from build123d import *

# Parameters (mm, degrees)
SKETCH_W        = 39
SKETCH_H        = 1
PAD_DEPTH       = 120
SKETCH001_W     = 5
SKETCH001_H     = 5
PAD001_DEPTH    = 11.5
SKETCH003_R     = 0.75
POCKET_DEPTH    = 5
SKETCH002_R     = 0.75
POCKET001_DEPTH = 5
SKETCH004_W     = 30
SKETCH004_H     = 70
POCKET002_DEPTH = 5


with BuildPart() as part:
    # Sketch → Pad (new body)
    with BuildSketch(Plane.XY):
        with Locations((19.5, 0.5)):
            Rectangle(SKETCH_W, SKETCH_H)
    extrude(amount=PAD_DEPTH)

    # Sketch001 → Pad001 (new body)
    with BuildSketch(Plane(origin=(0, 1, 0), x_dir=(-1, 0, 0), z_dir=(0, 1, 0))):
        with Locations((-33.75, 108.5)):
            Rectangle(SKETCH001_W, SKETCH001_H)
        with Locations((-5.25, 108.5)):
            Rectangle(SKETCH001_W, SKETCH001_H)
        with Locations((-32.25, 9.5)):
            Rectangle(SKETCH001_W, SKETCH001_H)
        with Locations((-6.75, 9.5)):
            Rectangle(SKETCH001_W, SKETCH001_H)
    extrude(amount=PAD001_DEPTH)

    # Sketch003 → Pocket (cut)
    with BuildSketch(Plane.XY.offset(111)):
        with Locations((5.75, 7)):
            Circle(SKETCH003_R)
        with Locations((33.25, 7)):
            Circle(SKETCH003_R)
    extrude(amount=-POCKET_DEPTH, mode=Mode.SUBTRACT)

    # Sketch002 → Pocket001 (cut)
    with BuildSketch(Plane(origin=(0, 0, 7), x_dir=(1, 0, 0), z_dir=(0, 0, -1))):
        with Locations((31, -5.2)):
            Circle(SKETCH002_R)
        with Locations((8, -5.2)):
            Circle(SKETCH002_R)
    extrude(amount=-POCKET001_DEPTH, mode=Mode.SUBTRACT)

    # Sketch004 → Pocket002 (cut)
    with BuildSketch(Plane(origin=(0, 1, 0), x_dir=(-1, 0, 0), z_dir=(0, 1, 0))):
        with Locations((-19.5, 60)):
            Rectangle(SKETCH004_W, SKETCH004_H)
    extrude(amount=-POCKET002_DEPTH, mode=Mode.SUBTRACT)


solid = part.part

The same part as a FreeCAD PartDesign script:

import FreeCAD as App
import Part
import Sketcher
from FreeCAD import Vector
Q = App.Units.Quantity


def add_polygon(sketch, points):
    """Adds a closed chain of lines whose ends are joined by coincident constraints."""
    first, n = sketch.GeometryCount, len(points)
    for a, b in zip(points, points[1:] + points[:1]):
        sketch.addGeometry(Part.LineSegment(App.Vector(*a, 0), App.Vector(*b, 0)), False)
    for i in range(n):
        sketch.addConstraint(Sketcher.Constraint("Coincident", first + i, 2, first + (i + 1) % n, 1))

doc = App.newDocument("Part")
body = doc.addObject("PartDesign::Body", "Body")

# Sketch on XY plane
sketch1 = body.newObject("Sketcher::SketchObject", "Sketch")
sketch1.AttachmentSupport = (doc.getObject("XY_Plane"), [""])
sketch1.MapMode = "FlatFace"
add_polygon(sketch1, [(0, 1), (0, 0), (39, 0), (39, 1)])  # lines 0-3
sketch1.addConstraint([
    Sketcher.Constraint("Vertical", 0),
    Sketcher.Constraint("Horizontal", 1),
    Sketcher.Constraint("Vertical", 2),
    Sketcher.Constraint("Horizontal", 3),
    Sketcher.Constraint("Coincident", 0, 2, -1, 1),
    Sketcher.Constraint("DistanceX", 1, 1, 1, 2, Q("39 mm")),
    Sketcher.Constraint("DistanceY", 0, 2, 0, 1, Q("1 mm")),
])
pad1 = body.newObject("PartDesign::Pad", "Pad")
pad1.Profile = sketch1
pad1.Length = 120

# Sketch on XZ plane
sketch2 = body.newObject("Sketcher::SketchObject", "Sketch001")
sketch2.AttachmentSupport = (doc.getObject("XZ_Plane"), [""])
sketch2.MapMode = "FlatFace"
sketch2.AttachmentOffset = App.Placement(Vector(0, 0, -1), App.Rotation())
add_polygon(sketch2, [(36.25, 111), (36.25, 106), (31.25, 106), (31.25, 111)])  # lines 0-3
add_polygon(sketch2, [(7.75, 111), (7.75, 106), (2.75, 106), (2.75, 111)])  # lines 4-7
add_polygon(sketch2, [(34.75, 12), (34.75, 7), (29.75, 7), (29.75, 12)])  # lines 8-11
add_polygon(sketch2, [(9.25, 12), (9.25, 7), (4.25, 7), (4.25, 12)])  # lines 12-15
sketch2.addConstraint([
    Sketcher.Constraint("Vertical", 0),
    Sketcher.Constraint("Horizontal", 1),
    Sketcher.Constraint("Vertical", 2),
    Sketcher.Constraint("Horizontal", 3),
    Sketcher.Constraint("Vertical", 4),
    Sketcher.Constraint("Horizontal", 5),
    Sketcher.Constraint("Vertical", 6),
    Sketcher.Constraint("Horizontal", 7),
    Sketcher.Constraint("Vertical", 8),
    Sketcher.Constraint("Horizontal", 9),
    Sketcher.Constraint("Vertical", 10),
    Sketcher.Constraint("Horizontal", 11),
    Sketcher.Constraint("Vertical", 12),
    Sketcher.Constraint("Horizontal", 13),
    Sketcher.Constraint("Vertical", 14),
    Sketcher.Constraint("Horizontal", 15),
    Sketcher.Constraint("Horizontal", 1, 2, 4, 2),
    Sketcher.Constraint("Horizontal", 3, 2, 6, 2),
    Sketcher.Constraint("Horizontal", 9, 2, 12, 2),
    Sketcher.Constraint("Horizontal", 11, 2, 14, 2),
    Sketcher.Constraint("Equal", 3, 5),
    Sketcher.Constraint("Equal", 7, 9),
    Sketcher.Constraint("Equal", 11, 13),
    Sketcher.Constraint("Equal", 15, 0),
    Sketcher.Constraint("Equal", 6, 8),
    Sketcher.Constraint("DistanceX", 1, 2, 1, 1, Q("5 mm")),
    Sketcher.Constraint("DistanceY", -1, 1, 0, 2, Q("106 mm")),
    Sketcher.Constraint("DistanceY", -1, 1, 8, 2, Q("7 mm")),
    Sketcher.Constraint("DistanceX", 4, 2, 8, 2, Q("27 mm")),
    Sketcher.Constraint("DistanceX", 4, 2, 1, 2, Q("23.5 mm")),
    Sketcher.Constraint("DistanceX", 12, 2, 9, 2, Q("20.5 mm")),
    Sketcher.Constraint("DistanceX", -1, 1, 0, 2, Q("36.25 mm")),
])
pad2 = body.newObject("PartDesign::Pad", "Pad001")
pad2.Profile = sketch2
pad2.Length = 11.5
pad2.Reversed = True

# Sketch on XY plane
sketch3 = body.newObject("Sketcher::SketchObject", "Sketch002")
sketch3.AttachmentSupport = (doc.getObject("XY_Plane"), [""])
sketch3.MapMode = "FlatFace"
sketch3.AttachmentOffset = App.Placement(Vector(0, 0, 111), App.Rotation())
sketch3.addGeometry([
    Part.Circle(Vector(5.75, 7, 0), Vector(0, 0, 1), 0.75),
    Part.Circle(Vector(33.25, 7, 0), Vector(0, 0, 1), 0.75),
], False)
sketch3.addConstraint([
    Sketcher.Constraint("Equal", 0, 1),
    Sketcher.Constraint("Horizontal", 0, 3, 1, 3),
    Sketcher.Constraint("Diameter", 0, Q("1.5 mm")),
    Sketcher.Constraint("DistanceY", -1, 1, 0, 3, Q("7 mm")),
    Sketcher.Constraint("DistanceX", 0, 3, 1, 3, Q("27.5 mm")),
    Sketcher.Constraint("DistanceX", -1, 1, 0, 3, Q("5.75 mm")),
])
pocket1 = body.newObject("PartDesign::Pocket", "Pocket")
pocket1.Profile = sketch3
pocket1.Length = 5

# Sketch on XY plane
sketch4 = body.newObject("Sketcher::SketchObject", "Sketch003")
sketch4.AttachmentSupport = (doc.getObject("XY_Plane"), [""])
sketch4.MapMode = "FlatFace"
sketch4.AttachmentOffset = App.Placement(Vector(0, 0, 7), App.Rotation())
sketch4.addGeometry([
    Part.Circle(Vector(31, 5.2, 0), Vector(0, 0, 1), 0.75),
    Part.Circle(Vector(8, 5.2, 0), Vector(0, 0, 1), 0.75),
], False)
sketch4.addConstraint([
    Sketcher.Constraint("Equal", 0, 1),
    Sketcher.Constraint("Horizontal", 0, 3, 1, 3),
    Sketcher.Constraint("Diameter", 0, Q("1.5 mm")),
    Sketcher.Constraint("DistanceX", -1, 1, 0, 3, Q("31 mm")),
    Sketcher.Constraint("DistanceX", -1, 1, 1, 3, Q("8 mm")),
    Sketcher.Constraint("DistanceY", -1, 1, 0, 3, Q("5.2 mm")),
])
pocket2 = body.newObject("PartDesign::Pocket", "Pocket001")
pocket2.Profile = sketch4
pocket2.Length = 5
pocket2.Reversed = True

# Sketch on XZ plane
sketch5 = body.newObject("Sketcher::SketchObject", "Sketch004")
sketch5.AttachmentSupport = (doc.getObject("XZ_Plane"), [""])
sketch5.MapMode = "FlatFace"
sketch5.AttachmentOffset = App.Placement(Vector(0, 0, -1), App.Rotation())
add_polygon(sketch5, [(34.5, 95), (34.5, 25), (4.5, 25), (4.5, 95)])  # lines 0-3
sketch5.addConstraint([
    Sketcher.Constraint("Vertical", 0),
    Sketcher.Constraint("Horizontal", 1),
    Sketcher.Constraint("Vertical", 2),
    Sketcher.Constraint("Horizontal", 3),
    Sketcher.Constraint("DistanceX", 1, 2, 1, 1, Q("30 mm")),
    Sketcher.Constraint("DistanceY", 0, 2, 0, 1, Q("70 mm")),
    Sketcher.Constraint("DistanceY", -1, 1, 0, 2, Q("25 mm")),
    Sketcher.Constraint("DistanceX", -1, 1, 0, 2, Q("34.5 mm")),
])
pocket3 = body.newObject("PartDesign::Pocket", "Pocket002")
pocket3.Profile = sketch5
pocket3.Length = 5
pocket3.Reversed = True

doc.recompute()
